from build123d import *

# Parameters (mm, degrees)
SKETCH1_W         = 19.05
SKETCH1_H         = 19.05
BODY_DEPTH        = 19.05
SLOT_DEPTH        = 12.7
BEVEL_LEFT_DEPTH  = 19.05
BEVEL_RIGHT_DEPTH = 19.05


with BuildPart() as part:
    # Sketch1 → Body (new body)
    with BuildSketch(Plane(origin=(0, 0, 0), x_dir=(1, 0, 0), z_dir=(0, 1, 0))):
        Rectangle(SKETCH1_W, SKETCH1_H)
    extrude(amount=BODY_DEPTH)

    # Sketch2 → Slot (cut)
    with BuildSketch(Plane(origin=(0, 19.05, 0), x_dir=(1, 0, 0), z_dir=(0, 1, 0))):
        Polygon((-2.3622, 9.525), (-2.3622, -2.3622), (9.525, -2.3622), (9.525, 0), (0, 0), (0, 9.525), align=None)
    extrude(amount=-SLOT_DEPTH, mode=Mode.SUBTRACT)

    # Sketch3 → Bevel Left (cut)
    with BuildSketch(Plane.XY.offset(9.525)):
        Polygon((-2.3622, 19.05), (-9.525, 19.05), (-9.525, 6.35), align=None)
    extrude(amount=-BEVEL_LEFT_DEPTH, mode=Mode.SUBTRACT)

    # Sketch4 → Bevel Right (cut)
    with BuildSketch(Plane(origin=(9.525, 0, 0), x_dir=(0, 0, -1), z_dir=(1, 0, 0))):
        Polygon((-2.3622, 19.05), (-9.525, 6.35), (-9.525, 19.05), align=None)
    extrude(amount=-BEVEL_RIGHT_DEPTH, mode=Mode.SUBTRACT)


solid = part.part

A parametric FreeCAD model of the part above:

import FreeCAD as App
import Part
import Sketcher
from FreeCAD import Vector
Q = App.Units.Quantity

doc = App.newDocument("Part")
body = doc.addObject("PartDesign::Body", "Body")

sketch1 = body.newObject("Sketcher::SketchObject", "Sketch")
sketch1.AttachmentSupport = (doc.getObject("XZ_Plane"), [""])
sketch1.MapMode = "FlatFace"
sketch1.addGeometry([
    Part.LineSegment(Vector(-10, -10, 0), Vector(-10, 10, 0)),
    Part.LineSegment(Vector(-10, 10, 0), Vector(10, 10, 0)),
    Part.LineSegment(Vector(10, 10, 0), Vector(10, -10, 0)),
    Part.LineSegment(Vector(10, -10, 0), Vector(-10, -10, 0)),
], False)
sketch1.addConstraint([
    Sketcher.Constraint("Coincident", 0, 2, 1, 1),
    Sketcher.Constraint("Coincident", 1, 2, 2, 1),
    Sketcher.Constraint("Coincident", 2, 2, 3, 1),
    Sketcher.Constraint("Coincident", 3, 2, 0, 1),
    Sketcher.Constraint("Vertical", 0),
    Sketcher.Constraint("Horizontal", 1),
    Sketcher.Constraint("Vertical", 2),
    Sketcher.Constraint("Horizontal", 3),
    Sketcher.Constraint("Symmetric", 0, 2, 2, 2, -1, 1),
    Sketcher.Constraint("Equal", 3, 0),
    Sketcher.Constraint("DistanceX", 1, 1, 1, 2, Q("0.75 in")),
])
pad1 = body.newObject("PartDesign::Pad", "Pad")
pad1.Profile = sketch1
pad1.Length = Q("0.75 in")
pad1.Reversed = True

sketch2 = body.newObject("Sketcher::SketchObject", "Sketch001")
sketch2.AttachmentSupport = (doc.getObject("XZ_Plane"), [""])
sketch2.MapMode = "FlatFace"
sketch2.AttachmentOffset = App.Placement(Vector(0, 0, -0.75 * 25.4), App.Rotation())
sketch2.addGeometry([
    Part.LineSegment(Vector(-2.4, -9.5, 0), Vector(-2.4, 2.4, 0)),
    Part.LineSegment(Vector(-2.4, 2.4, 0), Vector(9.5, 2.4, 0)),
    Part.LineSegment(Vector(9.5, 2.4, 0), Vector(9.5, 0, 0)),
    Part.LineSegment(Vector(9.5, 0, 0), Vector(0, 0, 0)),
    Part.LineSegment(Vector(0, 0, 0), Vector(0, -9.5, 0)),
    Part.LineSegment(Vector(0, -9.5, 0), Vector(-2.4, -9.5, 0)),
], False)
sketch2.addConstraint([
    Sketcher.Constraint("Coincident", 0, 2, 1, 1),
    Sketcher.Constraint("Coincident", 1, 2, 2, 1),
    Sketcher.Constraint("Coincident", 2, 2, 3, 1),
    Sketcher.Constraint("Coincident", 3, 2, 4, 1),
    Sketcher.Constraint("Coincident", 4, 2, 5, 1),
    Sketcher.Constraint("Coincident", 5, 2, 0, 1),
    Sketcher.Constraint("Vertical", 0),
    Sketcher.Constraint("Horizontal", 1),
    Sketcher.Constraint("Vertical", 2),
    Sketcher.Constraint("Horizontal", 3),
    Sketcher.Constraint("Vertical", 4),
    Sketcher.Constraint("Horizontal", 5),
    Sketcher.Constraint("Coincident", 3, 2, -1, 1),
    Sketcher.Constraint("Equal", 1, 0),
    Sketcher.Constraint("Equal", 5, 2),
    Sketcher.Constraint("DistanceX", 1, 1, 1, 2, Q("0.468 in")),
    Sketcher.Constraint("DistanceX", 3, 2, 3, 1, Q("0.375 in")),
])
pocket1 = body.newObject("PartDesign::Pocket", "Pocket")
pocket1.Profile = sketch2
pocket1.Length = Q("0.5 in")
pocket1.Reversed = True

sketch3 = body.newObject("Sketcher::SketchObject", "Sketch002")
sketch3.AttachmentSupport = (doc.getObject("XY_Plane"), [""])
sketch3.MapMode = "FlatFace"
sketch3.AttachmentOffset = App.Placement(Vector(0, 0, 0.375 * 25.4), App.Rotation())
sketch3.addGeometry([
    Part.LineSegment(Vector(-2, 19, 0), Vector(-10, 19, 0)),
    Part.LineSegment(Vector(-10, 19, 0), Vector(-10, 6, 0)),
    Part.LineSegment(Vector(-10, 6, 0), Vector(-2, 19, 0)),
], False)
sketch3.addConstraint([
    Sketcher.Constraint("Coincident", 0, 2, 1, 1),
    Sketcher.Constraint("Coincident", 1, 2, 2, 1),
    Sketcher.Constraint("Coincident", 2, 2, 0, 1),
    Sketcher.Constraint("Horizontal", 0),
    Sketcher.Constraint("Vertical", 1),
    Sketcher.Constraint("DistanceY", 1, 2, 1, 1, Q("0.5 in")),
    Sketcher.Constraint("DistanceX", 0, 2, 0, 1, Q("0.282 in")),
    Sketcher.Constraint("DistanceY", -1, 1, 0, 2, Q("0.75 in")),
    Sketcher.Constraint("DistanceX", 0, 2, -1, 1, Q("0.375 in")),
])
pocket2 = body.newObject("PartDesign::Pocket", "Pocket001")
pocket2.Profile = sketch3
pocket2.Length = Q("0.75 in")

sketch4 = body.newObject("Sketcher::SketchObject", "Sketch003")
sketch4.AttachmentSupport = (doc.getObject("YZ_Plane"), [""])
sketch4.MapMode = "FlatFace"
sketch4.AttachmentOffset = App.Placement(Vector(0, 0, 0.375 * 25.4), App.Rotation())
sketch4.addGeometry([
    Part.LineSegment(Vector(6, 10, 0), Vector(19, 2, 0)),
    Part.LineSegment(Vector(19, 2, 0), Vector(19, 10, 0)),
    Part.LineSegment(Vector(19, 10, 0), Vector(6, 10, 0)),
], False)
sketch4.addConstraint([
    Sketcher.Constraint("Coincident", 0, 2, 1, 1),
    Sketcher.Constraint("Coincident", 1, 2, 2, 1),
    Sketcher.Constraint("Coincident", 2, 2, 0, 1),
    Sketcher.Constraint("Vertical", 1),
    Sketcher.Constraint("Horizontal", 2),
    Sketcher.Constraint("DistanceX", 2, 2, 2, 1, Q("0.5 in")),
    Sketcher.Constraint("DistanceY", 1, 1, 1, 2, Q("0.282 in")),
    Sketcher.Constraint("DistanceX", -1, 1, 0, 2, Q("0.75 in")),
    Sketcher.Constraint("DistanceY", -1, 1, 0, 2, Q("0.093 in")),
])
pocket3 = body.newObject("PartDesign::Pocket", "Pocket002")
pocket3.Profile = sketch4
pocket3.Length = Q("0.75 in")

doc.recompute()
